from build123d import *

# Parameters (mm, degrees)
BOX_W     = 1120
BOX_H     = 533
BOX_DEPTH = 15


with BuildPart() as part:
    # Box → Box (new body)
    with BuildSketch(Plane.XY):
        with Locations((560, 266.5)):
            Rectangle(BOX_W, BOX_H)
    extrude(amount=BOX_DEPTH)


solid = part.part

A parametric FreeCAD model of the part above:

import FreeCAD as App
import Part
import Sketcher
Q = App.Units.Quantity


def add_polygon(sketch, points):
    """Adds a closed chain of lines whose ends are joined by coincident constraints."""
    first, n = sketch.GeometryCount, len(points)
    for a, b in zip(points, points[1:] + points[:1]):
        sketch.addGeometry(Part.LineSegment(App.Vector(*a, 0), App.Vector(*b, 0)), False)
    for i in range(n):
        sketch.addConstraint(Sketcher.Constraint("Coincident", first + i, 2, first + (i + 1) % n, 1))

doc = App.newDocument("Part")
body = doc.addObject("PartDesign::Body", "Body")

# Sketch on XY plane
sketch1 = body.newObject("Sketcher::SketchObject", "Sketch")
sketch1.AttachmentSupport = (doc.getObject("XY_Plane"), [""])
sketch1.MapMode = "FlatFace"
add_polygon(sketch1, [(0, 533), (0, 0), (1120, 0), (1120, 533)])  # lines 0-3
sketch1.addConstraint([
    Sketcher.Constraint("Vertical", 0),
    Sketcher.Constraint("Horizontal", 1),
    Sketcher.Constraint("Vertical", 2),
    Sketcher.Constraint("Horizontal", 3),
    Sketcher.Constraint("Coincident", 0, 2, -1, 1),
    Sketcher.Constraint("DistanceX", 1, 1, 1, 2, Q("1120 mm")),
    Sketcher.Constraint("DistanceY", 0, 2, 0, 1, Q("533 mm")),
])
pad1 = body.newObject("PartDesign::Pad", "Pad")
pad1.Profile = sketch1
pad1.Length = 15

doc.recompute()
